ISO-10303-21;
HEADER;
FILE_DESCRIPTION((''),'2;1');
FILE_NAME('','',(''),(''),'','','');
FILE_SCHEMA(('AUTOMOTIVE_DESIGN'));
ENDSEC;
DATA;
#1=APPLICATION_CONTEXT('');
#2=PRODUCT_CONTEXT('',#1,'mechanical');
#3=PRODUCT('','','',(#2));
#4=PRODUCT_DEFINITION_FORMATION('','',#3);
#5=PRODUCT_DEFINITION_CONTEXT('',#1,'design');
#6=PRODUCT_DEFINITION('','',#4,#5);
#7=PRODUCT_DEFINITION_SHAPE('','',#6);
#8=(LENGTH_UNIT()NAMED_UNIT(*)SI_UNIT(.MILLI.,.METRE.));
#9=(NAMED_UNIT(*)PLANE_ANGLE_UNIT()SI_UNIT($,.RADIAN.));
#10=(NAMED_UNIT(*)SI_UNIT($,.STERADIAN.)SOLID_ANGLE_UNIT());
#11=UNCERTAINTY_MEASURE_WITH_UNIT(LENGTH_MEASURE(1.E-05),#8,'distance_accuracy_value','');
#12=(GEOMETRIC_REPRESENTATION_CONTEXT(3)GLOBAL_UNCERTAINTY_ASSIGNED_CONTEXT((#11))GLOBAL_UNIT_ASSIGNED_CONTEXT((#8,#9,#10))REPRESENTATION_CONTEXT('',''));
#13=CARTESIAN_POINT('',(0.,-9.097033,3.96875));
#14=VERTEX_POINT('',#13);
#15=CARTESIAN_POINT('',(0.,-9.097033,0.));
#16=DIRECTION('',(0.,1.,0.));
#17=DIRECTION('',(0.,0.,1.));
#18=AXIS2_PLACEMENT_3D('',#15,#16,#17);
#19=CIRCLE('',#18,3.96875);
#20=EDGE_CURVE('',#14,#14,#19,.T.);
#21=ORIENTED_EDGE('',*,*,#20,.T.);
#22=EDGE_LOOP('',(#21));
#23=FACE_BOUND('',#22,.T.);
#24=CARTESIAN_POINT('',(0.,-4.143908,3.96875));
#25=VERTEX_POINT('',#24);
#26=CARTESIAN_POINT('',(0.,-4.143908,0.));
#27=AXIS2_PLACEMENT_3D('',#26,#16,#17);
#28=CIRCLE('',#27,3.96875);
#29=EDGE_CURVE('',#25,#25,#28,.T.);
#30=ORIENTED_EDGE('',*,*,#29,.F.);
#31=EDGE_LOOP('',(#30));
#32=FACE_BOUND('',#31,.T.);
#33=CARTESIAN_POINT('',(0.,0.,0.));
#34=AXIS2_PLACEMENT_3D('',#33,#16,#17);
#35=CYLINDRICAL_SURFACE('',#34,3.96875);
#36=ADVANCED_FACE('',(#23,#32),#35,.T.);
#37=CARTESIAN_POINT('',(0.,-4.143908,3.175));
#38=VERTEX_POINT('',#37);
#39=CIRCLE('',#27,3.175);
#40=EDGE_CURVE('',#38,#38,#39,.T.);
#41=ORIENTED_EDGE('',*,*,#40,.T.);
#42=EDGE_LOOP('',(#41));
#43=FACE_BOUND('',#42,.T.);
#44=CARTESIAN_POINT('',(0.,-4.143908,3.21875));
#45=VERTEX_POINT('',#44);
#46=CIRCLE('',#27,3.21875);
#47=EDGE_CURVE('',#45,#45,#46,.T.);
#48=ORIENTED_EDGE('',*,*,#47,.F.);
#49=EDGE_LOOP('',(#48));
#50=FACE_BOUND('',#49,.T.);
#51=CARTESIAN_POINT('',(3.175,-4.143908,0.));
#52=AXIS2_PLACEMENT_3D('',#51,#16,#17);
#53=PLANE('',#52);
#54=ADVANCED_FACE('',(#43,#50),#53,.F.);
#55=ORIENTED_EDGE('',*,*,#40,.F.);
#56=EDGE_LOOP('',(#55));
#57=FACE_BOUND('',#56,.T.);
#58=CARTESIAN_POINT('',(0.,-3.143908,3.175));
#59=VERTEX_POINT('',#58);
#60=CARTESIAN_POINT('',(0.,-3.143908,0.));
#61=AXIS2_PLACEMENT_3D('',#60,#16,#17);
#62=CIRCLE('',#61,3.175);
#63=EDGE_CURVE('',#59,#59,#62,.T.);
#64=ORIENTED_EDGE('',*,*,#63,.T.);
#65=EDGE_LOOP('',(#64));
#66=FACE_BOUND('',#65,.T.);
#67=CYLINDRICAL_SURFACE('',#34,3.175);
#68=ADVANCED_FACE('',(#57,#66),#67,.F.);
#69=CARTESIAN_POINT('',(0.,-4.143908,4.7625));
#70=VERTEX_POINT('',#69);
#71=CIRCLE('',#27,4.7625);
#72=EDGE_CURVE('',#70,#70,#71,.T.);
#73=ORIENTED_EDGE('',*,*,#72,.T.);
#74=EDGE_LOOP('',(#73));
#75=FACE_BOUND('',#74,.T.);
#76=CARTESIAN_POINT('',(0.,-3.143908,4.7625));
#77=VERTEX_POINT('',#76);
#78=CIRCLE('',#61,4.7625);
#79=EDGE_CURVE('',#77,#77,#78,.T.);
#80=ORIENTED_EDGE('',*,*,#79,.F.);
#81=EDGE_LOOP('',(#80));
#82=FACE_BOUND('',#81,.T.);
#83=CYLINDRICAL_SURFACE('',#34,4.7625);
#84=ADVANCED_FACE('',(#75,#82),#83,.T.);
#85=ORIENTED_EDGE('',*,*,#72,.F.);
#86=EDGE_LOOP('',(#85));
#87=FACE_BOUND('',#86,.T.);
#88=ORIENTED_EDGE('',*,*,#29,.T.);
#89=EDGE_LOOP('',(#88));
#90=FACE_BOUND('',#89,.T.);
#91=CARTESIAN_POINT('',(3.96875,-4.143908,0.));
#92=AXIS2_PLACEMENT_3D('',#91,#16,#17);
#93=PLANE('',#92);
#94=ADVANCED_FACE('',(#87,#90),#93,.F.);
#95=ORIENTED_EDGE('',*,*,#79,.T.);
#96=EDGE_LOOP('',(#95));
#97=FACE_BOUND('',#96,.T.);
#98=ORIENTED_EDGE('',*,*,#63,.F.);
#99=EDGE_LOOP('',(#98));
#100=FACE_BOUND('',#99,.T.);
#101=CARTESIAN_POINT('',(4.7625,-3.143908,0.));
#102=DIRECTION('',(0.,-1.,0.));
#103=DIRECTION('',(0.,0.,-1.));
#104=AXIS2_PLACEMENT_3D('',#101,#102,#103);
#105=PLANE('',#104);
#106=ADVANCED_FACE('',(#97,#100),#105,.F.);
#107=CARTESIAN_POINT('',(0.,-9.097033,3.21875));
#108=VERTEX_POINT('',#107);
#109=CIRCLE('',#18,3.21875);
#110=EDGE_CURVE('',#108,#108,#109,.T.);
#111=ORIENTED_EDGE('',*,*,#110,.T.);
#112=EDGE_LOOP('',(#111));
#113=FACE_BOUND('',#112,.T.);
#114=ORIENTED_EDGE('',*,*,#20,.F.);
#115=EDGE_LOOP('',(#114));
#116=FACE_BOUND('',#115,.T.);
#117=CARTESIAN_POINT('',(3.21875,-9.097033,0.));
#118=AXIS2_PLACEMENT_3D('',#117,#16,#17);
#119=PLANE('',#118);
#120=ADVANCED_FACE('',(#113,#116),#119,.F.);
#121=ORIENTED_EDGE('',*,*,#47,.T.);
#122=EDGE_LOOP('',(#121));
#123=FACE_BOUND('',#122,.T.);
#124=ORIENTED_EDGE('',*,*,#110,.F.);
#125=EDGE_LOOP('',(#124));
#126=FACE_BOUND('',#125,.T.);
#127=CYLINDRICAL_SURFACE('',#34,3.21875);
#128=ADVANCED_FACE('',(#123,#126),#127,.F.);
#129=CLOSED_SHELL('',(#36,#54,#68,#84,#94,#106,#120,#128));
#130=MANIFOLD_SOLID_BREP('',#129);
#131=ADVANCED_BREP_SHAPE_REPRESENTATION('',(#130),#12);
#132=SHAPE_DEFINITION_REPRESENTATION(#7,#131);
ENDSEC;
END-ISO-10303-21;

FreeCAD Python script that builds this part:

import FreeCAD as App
import Part
import Sketcher
from FreeCAD import Vector
Q = App.Units.Quantity

doc = App.newDocument("Part")
params = doc.addObject("Spreadsheet::Sheet", "Params")
for row, (alias, value) in enumerate([
    ("sketch1_width", "0.03125 in"),
    ("sketch1_width2", "0.0625 in"),
    ("revolution_angle", "360 deg"),
], start=1):
    params.set(f"A{row}", alias)
    params.set(f"B{row}", "=" + value)
    params.setAlias(f"B{row}", alias)

body = doc.addObject("PartDesign::Body", "Body")

# Sketch on XY plane
sketch1 = body.newObject("Sketcher::SketchObject", "Sketch")
sketch1.AttachmentSupport = (doc.getObject("XY_Plane"), [""])
sketch1.MapMode = "FlatFace"
sketch1.addGeometry(Part.LineSegment(Vector(3.175, -3.144, 0), Vector(3.175, -4.144, 0)), False)
sketch1.addGeometry(Part.LineSegment(Vector(3.175, -4.144, 0), Vector(3.219, -4.144, 0)), False)
sketch1.addGeometry(Part.LineSegment(Vector(3.219, -4.144, 0), Vector(3.219, -9.097, 0)), False)
sketch1.addGeometry(Part.LineSegment(Vector(3.219, -9.097, 0), Vector(3.969, -9.097, 0)), False)
sketch1.addGeometry(Part.LineSegment(Vector(3.969, -9.097, 0), Vector(3.969, -4.144, 0)), False)
sketch1.addGeometry(Part.LineSegment(Vector(3.969, -4.144, 0), Vector(4.763, -4.144, 0)), False)
sketch1.addGeometry(Part.LineSegment(Vector(4.763, -4.144, 0), Vector(4.763, -3.144, 0)), False)
sketch1.addGeometry(Part.LineSegment(Vector(4.763, -3.144, 0), Vector(3.175, -3.144, 0)), False)
sketch1.addConstraint(Sketcher.Constraint("Coincident", 0, 2, 1, 1))
sketch1.addConstraint(Sketcher.Constraint("Coincident", 1, 2, 2, 1))
sketch1.addConstraint(Sketcher.Constraint("Coincident", 2, 2, 3, 1))
sketch1.addConstraint(Sketcher.Constraint("Coincident", 3, 2, 4, 1))
sketch1.addConstraint(Sketcher.Constraint("Coincident", 4, 2, 5, 1))
sketch1.addConstraint(Sketcher.Constraint("Coincident", 5, 2, 6, 1))
sketch1.addConstraint(Sketcher.Constraint("Coincident", 6, 2, 7, 1))
sketch1.addConstraint(Sketcher.Constraint("Coincident", 7, 2, 0, 1))
sketch1.addConstraint(Sketcher.Constraint("Vertical", 0))
sketch1.addConstraint(Sketcher.Constraint("Horizontal", 1))
sketch1.addConstraint(Sketcher.Constraint("Vertical", 2))
sketch1.addConstraint(Sketcher.Constraint("Horizontal", 3))
sketch1.addConstraint(Sketcher.Constraint("Vertical", 4))
sketch1.addConstraint(Sketcher.Constraint("Horizontal", 5))
sketch1.addConstraint(Sketcher.Constraint("Vertical", 6))
sketch1.addConstraint(Sketcher.Constraint("Horizontal", 7))
sketch1.addConstraint(Sketcher.Constraint("Horizontal", 1, 2, 4, 2))
sketch1.addConstraint(Sketcher.Constraint("DistanceX", 5, 1, 5, 2, Q("0.03125 in")))
sketch1.addConstraint(Sketcher.Constraint("DistanceX", 7, 2, 7, 1, Q("0.0625 in")))
sketch1.addConstraint(Sketcher.Constraint("DistanceX", -1, 1, 0, 2, Q("0.125 in")))
sketch1.addConstraint(Sketcher.Constraint("DistanceY", 3, 2, 6, 2, Q("0.234375 in")))
sketch1.addConstraint(Sketcher.Constraint("DistanceX", 3, 1, 3, 2, 0.75))
sketch1.addConstraint(Sketcher.Constraint("DistanceY", 0, 2, 0, 1, 1.0))
sketch1.addConstraint(Sketcher.Constraint("DistanceY", 0, 2, -1, 1, 4.143908))
sketch1.setExpression("Constraints[17]", "Params.sketch1_width")
sketch1.setExpression("Constraints[18]", "Params.sketch1_width2")
revolution = body.newObject("PartDesign::Revolution", "Revolution")
revolution.Profile = sketch1
revolution.ReferenceAxis = (sketch1, ["V_Axis"])
revolution.setExpression("Angle", "Params.revolution_angle")

doc.recompute()
